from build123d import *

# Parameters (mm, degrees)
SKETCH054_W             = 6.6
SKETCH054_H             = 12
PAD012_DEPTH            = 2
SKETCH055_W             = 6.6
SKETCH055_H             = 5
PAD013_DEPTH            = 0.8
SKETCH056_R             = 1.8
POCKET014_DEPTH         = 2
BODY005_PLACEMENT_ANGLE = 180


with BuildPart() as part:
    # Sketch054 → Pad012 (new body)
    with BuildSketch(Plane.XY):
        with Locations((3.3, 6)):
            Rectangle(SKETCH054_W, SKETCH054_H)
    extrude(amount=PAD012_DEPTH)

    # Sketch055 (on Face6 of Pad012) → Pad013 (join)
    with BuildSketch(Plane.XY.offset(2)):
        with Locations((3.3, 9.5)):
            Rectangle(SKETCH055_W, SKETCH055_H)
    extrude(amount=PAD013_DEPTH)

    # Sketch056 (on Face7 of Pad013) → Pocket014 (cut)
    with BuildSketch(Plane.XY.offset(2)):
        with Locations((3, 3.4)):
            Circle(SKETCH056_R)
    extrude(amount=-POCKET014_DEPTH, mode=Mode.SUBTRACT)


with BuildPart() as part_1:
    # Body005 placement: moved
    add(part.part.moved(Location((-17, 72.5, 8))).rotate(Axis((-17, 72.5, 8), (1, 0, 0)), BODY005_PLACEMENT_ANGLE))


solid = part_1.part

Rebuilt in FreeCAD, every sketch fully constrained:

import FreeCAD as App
import Part
import Sketcher
from FreeCAD import Vector
Q = App.Units.Quantity


def add_polygon(sketch, points):
    """Adds a closed chain of lines whose ends are joined by coincident constraints."""
    first, n = sketch.GeometryCount, len(points)
    for a, b in zip(points, points[1:] + points[:1]):
        sketch.addGeometry(Part.LineSegment(App.Vector(*a, 0), App.Vector(*b, 0)), False)
    for i in range(n):
        sketch.addConstraint(Sketcher.Constraint("Coincident", first + i, 2, first + (i + 1) % n, 1))

doc = App.newDocument("Part")
body = doc.addObject("PartDesign::Body", "Body")

# Sketch on XY plane
sketch1 = body.newObject("Sketcher::SketchObject", "Sketch")
sketch1.AttachmentSupport = (doc.getObject("XY_Plane"), [""])
sketch1.MapMode = "FlatFace"
add_polygon(sketch1, [(0, 12), (0, 0), (6.6, 0), (6.6, 12)])  # lines 0-3
sketch1.addConstraint([
    Sketcher.Constraint("Vertical", 0),
    Sketcher.Constraint("Horizontal", 1),
    Sketcher.Constraint("Vertical", 2),
    Sketcher.Constraint("Horizontal", 3),
    Sketcher.Constraint("Coincident", 0, 2, -1, 1),
    Sketcher.Constraint("DistanceY", 0, 2, 0, 1, Q("12 mm")),
    Sketcher.Constraint("DistanceX", 1, 1, 1, 2, Q("6.6 mm")),
])
pad1 = body.newObject("PartDesign::Pad", "Pad")
pad1.Profile = sketch1
pad1.Length = 2

# Sketch on XY plane
sketch2 = body.newObject("Sketcher::SketchObject", "Sketch001")
sketch2.AttachmentSupport = (doc.getObject("XY_Plane"), [""])
sketch2.MapMode = "FlatFace"
sketch2.AttachmentOffset = App.Placement(Vector(0, 0, 2), App.Rotation())
add_polygon(sketch2, [(0, 12), (0, 7), (6.6, 7), (6.6, 12)])  # lines 0-3
sketch2.addConstraint([
    Sketcher.Constraint("Vertical", 0),
    Sketcher.Constraint("Horizontal", 1),
    Sketcher.Constraint("Vertical", 2),
    Sketcher.Constraint("Horizontal", 3),
    Sketcher.Constraint("PointOnObject", 0, 2, -2),
    Sketcher.Constraint("DistanceY", 0, 2, 0, 1, Q("5 mm")),
    Sketcher.Constraint("DistanceX", 1, 1, 1, 2, Q("6.6 mm")),
    Sketcher.Constraint("DistanceY", -1, 1, 0, 2, Q("7 mm")),
])
pad2 = body.newObject("PartDesign::Pad", "Pad001")
pad2.Profile = sketch2
pad2.Length = 0.8

# Sketch on XY plane
sketch3 = body.newObject("Sketcher::SketchObject", "Sketch002")
sketch3.AttachmentSupport = (doc.getObject("XY_Plane"), [""])
sketch3.MapMode = "FlatFace"
sketch3.AttachmentOffset = App.Placement(Vector(0, 0, 2), App.Rotation())
sketch3.addGeometry(Part.Circle(Vector(3, 3.4, 0), Vector(0, 0, 1), 1.8), False)
sketch3.addConstraint([
    Sketcher.Constraint("Diameter", 0, Q("3.6 mm")),
    Sketcher.Constraint("DistanceX", -1, 1, 0, 3, Q("3 mm")),
    Sketcher.Constraint("DistanceY", -1, 1, 0, 3, Q("3.4 mm")),
])
pocket1 = body.newObject("PartDesign::Pocket", "Pocket")
pocket1.Profile = sketch3
pocket1.Length = 2
body2 = doc.addObject("PartDesign::Body", "Body001")
doc.recompute()

body.Placement = App.Placement(Vector(-17, 72.5, 8), App.Rotation(Vector(1, 0, 0), 180))
boolean = body2.newObject("PartDesign::Boolean", "Boolean")
boolean.Type = "Fuse"
boolean.addObjects([body])

doc.recompute()
